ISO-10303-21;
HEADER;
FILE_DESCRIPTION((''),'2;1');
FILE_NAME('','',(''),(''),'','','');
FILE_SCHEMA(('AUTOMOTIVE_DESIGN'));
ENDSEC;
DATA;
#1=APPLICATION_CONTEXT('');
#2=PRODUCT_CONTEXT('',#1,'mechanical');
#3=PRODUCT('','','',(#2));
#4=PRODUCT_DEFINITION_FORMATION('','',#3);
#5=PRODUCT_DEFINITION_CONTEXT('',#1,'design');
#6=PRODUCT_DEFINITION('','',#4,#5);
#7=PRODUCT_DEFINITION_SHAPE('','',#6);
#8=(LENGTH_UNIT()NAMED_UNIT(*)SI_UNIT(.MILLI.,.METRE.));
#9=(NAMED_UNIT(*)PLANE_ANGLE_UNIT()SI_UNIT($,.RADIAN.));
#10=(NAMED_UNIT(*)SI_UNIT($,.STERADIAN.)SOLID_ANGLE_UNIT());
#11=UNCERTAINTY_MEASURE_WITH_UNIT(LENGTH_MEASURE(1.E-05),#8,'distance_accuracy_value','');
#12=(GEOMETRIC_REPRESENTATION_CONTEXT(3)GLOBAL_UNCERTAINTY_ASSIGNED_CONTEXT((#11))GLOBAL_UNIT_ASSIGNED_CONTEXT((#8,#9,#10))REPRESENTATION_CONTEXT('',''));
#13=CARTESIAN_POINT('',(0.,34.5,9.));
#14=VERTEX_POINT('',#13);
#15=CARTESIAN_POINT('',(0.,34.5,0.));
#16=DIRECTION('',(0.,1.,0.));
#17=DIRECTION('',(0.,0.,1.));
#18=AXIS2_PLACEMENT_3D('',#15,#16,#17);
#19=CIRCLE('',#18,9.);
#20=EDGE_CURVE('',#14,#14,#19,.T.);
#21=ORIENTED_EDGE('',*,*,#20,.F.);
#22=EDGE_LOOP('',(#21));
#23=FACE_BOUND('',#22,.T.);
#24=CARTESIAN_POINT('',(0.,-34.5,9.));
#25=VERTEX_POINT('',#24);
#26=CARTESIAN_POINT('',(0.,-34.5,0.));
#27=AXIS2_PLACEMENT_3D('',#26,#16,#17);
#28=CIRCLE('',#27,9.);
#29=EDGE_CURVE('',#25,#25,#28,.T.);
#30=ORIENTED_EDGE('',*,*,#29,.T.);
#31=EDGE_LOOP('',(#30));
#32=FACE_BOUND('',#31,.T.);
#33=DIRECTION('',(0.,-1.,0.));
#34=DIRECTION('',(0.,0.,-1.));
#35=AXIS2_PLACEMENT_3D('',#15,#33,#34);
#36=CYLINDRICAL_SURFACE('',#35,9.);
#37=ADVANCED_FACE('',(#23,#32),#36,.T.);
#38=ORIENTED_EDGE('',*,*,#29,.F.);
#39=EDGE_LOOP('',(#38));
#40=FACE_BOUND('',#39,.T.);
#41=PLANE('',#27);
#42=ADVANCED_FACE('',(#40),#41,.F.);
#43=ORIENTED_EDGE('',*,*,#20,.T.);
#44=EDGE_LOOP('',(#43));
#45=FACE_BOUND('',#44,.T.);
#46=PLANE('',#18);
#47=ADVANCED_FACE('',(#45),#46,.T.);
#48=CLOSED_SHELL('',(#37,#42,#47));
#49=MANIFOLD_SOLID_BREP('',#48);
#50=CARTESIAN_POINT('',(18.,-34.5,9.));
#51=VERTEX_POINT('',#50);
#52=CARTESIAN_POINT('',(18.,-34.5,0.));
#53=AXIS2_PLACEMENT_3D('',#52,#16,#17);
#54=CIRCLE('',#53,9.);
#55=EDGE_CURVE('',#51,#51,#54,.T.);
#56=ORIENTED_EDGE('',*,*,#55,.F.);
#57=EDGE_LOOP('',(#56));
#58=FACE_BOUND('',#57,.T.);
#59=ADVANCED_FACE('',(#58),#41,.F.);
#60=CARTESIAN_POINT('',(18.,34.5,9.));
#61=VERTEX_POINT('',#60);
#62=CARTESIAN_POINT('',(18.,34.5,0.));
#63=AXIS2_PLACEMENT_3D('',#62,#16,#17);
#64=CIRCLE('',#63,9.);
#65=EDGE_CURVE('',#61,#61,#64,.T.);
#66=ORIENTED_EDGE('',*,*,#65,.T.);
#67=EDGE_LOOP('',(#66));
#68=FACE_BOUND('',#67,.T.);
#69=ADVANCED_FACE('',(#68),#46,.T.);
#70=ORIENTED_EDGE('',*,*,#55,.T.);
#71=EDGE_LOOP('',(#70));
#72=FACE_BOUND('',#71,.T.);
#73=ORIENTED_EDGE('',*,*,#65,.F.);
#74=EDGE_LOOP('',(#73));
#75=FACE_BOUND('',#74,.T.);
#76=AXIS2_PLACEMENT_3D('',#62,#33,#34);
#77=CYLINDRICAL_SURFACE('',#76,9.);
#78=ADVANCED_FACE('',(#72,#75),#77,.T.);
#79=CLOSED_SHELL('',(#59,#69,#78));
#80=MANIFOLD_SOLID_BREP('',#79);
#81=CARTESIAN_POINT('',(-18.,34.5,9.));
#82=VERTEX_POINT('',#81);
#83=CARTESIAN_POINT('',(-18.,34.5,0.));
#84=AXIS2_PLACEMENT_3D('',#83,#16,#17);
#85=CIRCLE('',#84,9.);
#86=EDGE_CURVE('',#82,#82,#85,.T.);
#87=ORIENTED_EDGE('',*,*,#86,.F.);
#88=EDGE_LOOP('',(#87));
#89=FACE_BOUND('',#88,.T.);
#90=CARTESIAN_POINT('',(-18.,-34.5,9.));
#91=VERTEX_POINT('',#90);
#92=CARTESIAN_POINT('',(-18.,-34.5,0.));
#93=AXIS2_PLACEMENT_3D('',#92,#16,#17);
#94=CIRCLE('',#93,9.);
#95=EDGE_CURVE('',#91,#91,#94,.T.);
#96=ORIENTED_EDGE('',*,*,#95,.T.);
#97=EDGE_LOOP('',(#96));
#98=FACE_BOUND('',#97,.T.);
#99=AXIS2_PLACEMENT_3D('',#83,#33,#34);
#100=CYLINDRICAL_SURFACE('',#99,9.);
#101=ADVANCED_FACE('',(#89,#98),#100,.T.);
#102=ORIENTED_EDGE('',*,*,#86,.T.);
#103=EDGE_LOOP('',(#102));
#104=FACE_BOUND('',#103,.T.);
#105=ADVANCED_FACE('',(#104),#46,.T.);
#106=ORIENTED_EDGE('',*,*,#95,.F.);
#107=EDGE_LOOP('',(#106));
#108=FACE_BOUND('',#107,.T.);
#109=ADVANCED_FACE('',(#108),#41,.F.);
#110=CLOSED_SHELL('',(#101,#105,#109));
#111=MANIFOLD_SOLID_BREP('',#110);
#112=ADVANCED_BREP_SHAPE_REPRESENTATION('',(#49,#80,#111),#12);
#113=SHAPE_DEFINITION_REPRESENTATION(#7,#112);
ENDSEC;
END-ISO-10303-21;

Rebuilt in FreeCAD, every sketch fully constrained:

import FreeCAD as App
import Part
import Sketcher
Q = App.Units.Quantity

doc = App.newDocument("Part")
body = doc.addObject("PartDesign::Body", "Body")

# Sketch on XZ plane
sketch1 = body.newObject("Sketcher::SketchObject", "Sketch")
sketch1.AttachmentSupport = (doc.getObject("XZ_Plane"), [""])
sketch1.MapMode = "FlatFace"
sketch1.addGeometry(Part.Circle(App.Vector(-18, 0, 0), App.Vector(0, 0, 1), 9), False)
sketch1.addConstraint([
    Sketcher.Constraint("PointOnObject", 0, 3, -1),
    Sketcher.Constraint("Diameter", 0, Q("18 mm")),
    Sketcher.Constraint("DistanceX", 0, 3, -1, 1, Q("18 mm")),
])
pad1 = body.newObject("PartDesign::Pad", "Pad")
pad1.Profile = sketch1
pad1.Length = 69
pad1.Midplane = True
body2 = doc.addObject("PartDesign::Body", "Body001")

# Sketch on XZ plane
sketch2 = body2.newObject("Sketcher::SketchObject", "Sketch001")
sketch2.AttachmentSupport = (doc.getObject("XZ_Plane001"), [""])
sketch2.MapMode = "FlatFace"
sketch2.addGeometry(Part.Circle(App.Vector(0, 0, 0), App.Vector(0, 0, 1), 9), False)
sketch2.addConstraint([
    Sketcher.Constraint("Coincident", 0, 3, -1, 1),
    Sketcher.Constraint("Diameter", 0, Q("18 mm")),
])
pad2 = body2.newObject("PartDesign::Pad", "Pad001")
pad2.Profile = sketch2
pad2.Length = 69
pad2.Midplane = True
body3 = doc.addObject("PartDesign::Body", "Body002")

# Sketch on XZ plane
sketch3 = body3.newObject("Sketcher::SketchObject", "Sketch002")
sketch3.AttachmentSupport = (doc.getObject("XZ_Plane002"), [""])
sketch3.MapMode = "FlatFace"
sketch3.addGeometry(Part.Circle(App.Vector(18, 0, 0), App.Vector(0, 0, 1), 9), False)
sketch3.addConstraint([
    Sketcher.Constraint("PointOnObject", 0, 3, -1),
    Sketcher.Constraint("Diameter", 0, Q("18 mm")),
    Sketcher.Constraint("DistanceX", -1, 1, 0, 3, Q("18 mm")),
])
pad3 = body3.newObject("PartDesign::Pad", "Pad002")
pad3.Profile = sketch3
pad3.Length = 69
pad3.Midplane = True

doc.recompute()
